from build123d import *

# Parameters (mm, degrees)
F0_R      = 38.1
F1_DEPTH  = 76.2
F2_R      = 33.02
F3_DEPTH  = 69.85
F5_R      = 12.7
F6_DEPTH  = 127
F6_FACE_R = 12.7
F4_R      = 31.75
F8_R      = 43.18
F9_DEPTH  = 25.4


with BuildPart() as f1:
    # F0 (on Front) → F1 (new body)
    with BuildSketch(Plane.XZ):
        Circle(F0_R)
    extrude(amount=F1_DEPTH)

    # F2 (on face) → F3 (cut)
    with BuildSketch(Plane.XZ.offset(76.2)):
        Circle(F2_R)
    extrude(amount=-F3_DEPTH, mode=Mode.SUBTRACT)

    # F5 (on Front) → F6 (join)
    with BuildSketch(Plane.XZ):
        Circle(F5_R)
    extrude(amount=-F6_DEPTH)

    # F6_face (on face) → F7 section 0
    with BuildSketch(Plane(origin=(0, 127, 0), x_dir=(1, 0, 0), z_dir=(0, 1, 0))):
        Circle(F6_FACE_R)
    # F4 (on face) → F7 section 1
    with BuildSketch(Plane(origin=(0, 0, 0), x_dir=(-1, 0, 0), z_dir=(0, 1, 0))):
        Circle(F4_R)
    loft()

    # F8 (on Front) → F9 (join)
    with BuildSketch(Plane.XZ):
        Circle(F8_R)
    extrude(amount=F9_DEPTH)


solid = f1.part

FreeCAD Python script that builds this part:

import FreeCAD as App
import Part
import Sketcher
from FreeCAD import Vector
Q = App.Units.Quantity

doc = App.newDocument("Part")
body = doc.addObject("PartDesign::Body", "Body")

sketch1 = body.newObject("Sketcher::SketchObject", "Sketch")
sketch1.AttachmentSupport = (doc.getObject("XZ_Plane"), [""])
sketch1.MapMode = "FlatFace"
sketch1.addGeometry(Part.Circle(Vector(0, 0, 0), Vector(0, 0, 1), 38), False)
sketch1.addConstraint(Sketcher.Constraint("Coincident", 0, 3, -1, 1))
sketch1.addConstraint(Sketcher.Constraint("Diameter", 0, Q("3 in")))
pad1 = body.newObject("PartDesign::Pad", "Pad")
pad1.Profile = sketch1
pad1.Length = Q("3 in")

sketch2 = body.newObject("Sketcher::SketchObject", "Sketch001")
sketch2.AttachmentSupport = (doc.getObject("XZ_Plane"), [""])
sketch2.MapMode = "FlatFace"
sketch2.AttachmentOffset = App.Placement(Vector(0, 0, 3 * 25.4), App.Rotation())
sketch2.addGeometry(Part.Circle(Vector(0, 0, 0), Vector(0, 0, 1), 33), False)
sketch2.addConstraint(Sketcher.Constraint("Coincident", 0, 3, -1, 1))
sketch2.addConstraint(Sketcher.Constraint("Diameter", 0, Q("2.6 in")))
pocket1 = body.newObject("PartDesign::Pocket", "Pocket")
pocket1.Profile = sketch2
pocket1.Length = Q("2.75 in")

sketch3 = body.newObject("Sketcher::SketchObject", "Sketch002")
sketch3.AttachmentSupport = (doc.getObject("XZ_Plane"), [""])
sketch3.MapMode = "FlatFace"
sketch3.addGeometry(Part.Circle(Vector(0, 0, 0), Vector(0, 0, 1), 13), False)
sketch3.addConstraint(Sketcher.Constraint("Coincident", 0, 3, -1, 1))
sketch3.addConstraint(Sketcher.Constraint("Diameter", 0, Q("1 in")))
pad2 = body.newObject("PartDesign::Pad", "Pad001")
pad2.Profile = sketch3
pad2.Length = Q("5 in")
pad2.Reversed = True

sketch4 = body.newObject("Sketcher::SketchObject", "Sketch003")
sketch4.AttachmentSupport = (doc.getObject("XZ_Plane"), [""])
sketch4.MapMode = "FlatFace"
sketch4.AttachmentOffset = App.Placement(Vector(0, 0, -5 * 25.4), App.Rotation())
sketch4.addGeometry(Part.Circle(Vector(0, 0, 0), Vector(0, 0, 1), 13), False)
sketch4.addConstraint(Sketcher.Constraint("Coincident", 0, 3, -1, 1))
sketch4.addConstraint(Sketcher.Constraint("Diameter", 0, Q("1 in")))

sketch5 = body.newObject("Sketcher::SketchObject", "Sketch004")
sketch5.AttachmentSupport = (doc.getObject("XZ_Plane"), [""])
sketch5.MapMode = "FlatFace"
sketch5.addGeometry(Part.Circle(Vector(0, 0, 0), Vector(0, 0, 1), 32), False)
sketch5.addConstraint(Sketcher.Constraint("Coincident", 0, 3, -1, 1))
sketch5.addConstraint(Sketcher.Constraint("Diameter", 0, Q("2.5 in")))

additiveloft = body.newObject("PartDesign::AdditiveLoft", "AdditiveLoft")
additiveloft.Profile = sketch4
additiveloft.Sections = [sketch5]

sketch6 = body.newObject("Sketcher::SketchObject", "Sketch005")
sketch6.AttachmentSupport = (doc.getObject("XZ_Plane"), [""])
sketch6.MapMode = "FlatFace"
sketch6.addGeometry(Part.Circle(Vector(0, 0, 0), Vector(0, 0, 1), 43), False)
sketch6.addConstraint(Sketcher.Constraint("Coincident", 0, 3, -1, 1))
sketch6.addConstraint(Sketcher.Constraint("Diameter", 0, Q("3.4 in")))
pad3 = body.newObject("PartDesign::Pad", "Pad002")
pad3.Profile = sketch6
pad3.Length = Q("1 in")

doc.recompute()
